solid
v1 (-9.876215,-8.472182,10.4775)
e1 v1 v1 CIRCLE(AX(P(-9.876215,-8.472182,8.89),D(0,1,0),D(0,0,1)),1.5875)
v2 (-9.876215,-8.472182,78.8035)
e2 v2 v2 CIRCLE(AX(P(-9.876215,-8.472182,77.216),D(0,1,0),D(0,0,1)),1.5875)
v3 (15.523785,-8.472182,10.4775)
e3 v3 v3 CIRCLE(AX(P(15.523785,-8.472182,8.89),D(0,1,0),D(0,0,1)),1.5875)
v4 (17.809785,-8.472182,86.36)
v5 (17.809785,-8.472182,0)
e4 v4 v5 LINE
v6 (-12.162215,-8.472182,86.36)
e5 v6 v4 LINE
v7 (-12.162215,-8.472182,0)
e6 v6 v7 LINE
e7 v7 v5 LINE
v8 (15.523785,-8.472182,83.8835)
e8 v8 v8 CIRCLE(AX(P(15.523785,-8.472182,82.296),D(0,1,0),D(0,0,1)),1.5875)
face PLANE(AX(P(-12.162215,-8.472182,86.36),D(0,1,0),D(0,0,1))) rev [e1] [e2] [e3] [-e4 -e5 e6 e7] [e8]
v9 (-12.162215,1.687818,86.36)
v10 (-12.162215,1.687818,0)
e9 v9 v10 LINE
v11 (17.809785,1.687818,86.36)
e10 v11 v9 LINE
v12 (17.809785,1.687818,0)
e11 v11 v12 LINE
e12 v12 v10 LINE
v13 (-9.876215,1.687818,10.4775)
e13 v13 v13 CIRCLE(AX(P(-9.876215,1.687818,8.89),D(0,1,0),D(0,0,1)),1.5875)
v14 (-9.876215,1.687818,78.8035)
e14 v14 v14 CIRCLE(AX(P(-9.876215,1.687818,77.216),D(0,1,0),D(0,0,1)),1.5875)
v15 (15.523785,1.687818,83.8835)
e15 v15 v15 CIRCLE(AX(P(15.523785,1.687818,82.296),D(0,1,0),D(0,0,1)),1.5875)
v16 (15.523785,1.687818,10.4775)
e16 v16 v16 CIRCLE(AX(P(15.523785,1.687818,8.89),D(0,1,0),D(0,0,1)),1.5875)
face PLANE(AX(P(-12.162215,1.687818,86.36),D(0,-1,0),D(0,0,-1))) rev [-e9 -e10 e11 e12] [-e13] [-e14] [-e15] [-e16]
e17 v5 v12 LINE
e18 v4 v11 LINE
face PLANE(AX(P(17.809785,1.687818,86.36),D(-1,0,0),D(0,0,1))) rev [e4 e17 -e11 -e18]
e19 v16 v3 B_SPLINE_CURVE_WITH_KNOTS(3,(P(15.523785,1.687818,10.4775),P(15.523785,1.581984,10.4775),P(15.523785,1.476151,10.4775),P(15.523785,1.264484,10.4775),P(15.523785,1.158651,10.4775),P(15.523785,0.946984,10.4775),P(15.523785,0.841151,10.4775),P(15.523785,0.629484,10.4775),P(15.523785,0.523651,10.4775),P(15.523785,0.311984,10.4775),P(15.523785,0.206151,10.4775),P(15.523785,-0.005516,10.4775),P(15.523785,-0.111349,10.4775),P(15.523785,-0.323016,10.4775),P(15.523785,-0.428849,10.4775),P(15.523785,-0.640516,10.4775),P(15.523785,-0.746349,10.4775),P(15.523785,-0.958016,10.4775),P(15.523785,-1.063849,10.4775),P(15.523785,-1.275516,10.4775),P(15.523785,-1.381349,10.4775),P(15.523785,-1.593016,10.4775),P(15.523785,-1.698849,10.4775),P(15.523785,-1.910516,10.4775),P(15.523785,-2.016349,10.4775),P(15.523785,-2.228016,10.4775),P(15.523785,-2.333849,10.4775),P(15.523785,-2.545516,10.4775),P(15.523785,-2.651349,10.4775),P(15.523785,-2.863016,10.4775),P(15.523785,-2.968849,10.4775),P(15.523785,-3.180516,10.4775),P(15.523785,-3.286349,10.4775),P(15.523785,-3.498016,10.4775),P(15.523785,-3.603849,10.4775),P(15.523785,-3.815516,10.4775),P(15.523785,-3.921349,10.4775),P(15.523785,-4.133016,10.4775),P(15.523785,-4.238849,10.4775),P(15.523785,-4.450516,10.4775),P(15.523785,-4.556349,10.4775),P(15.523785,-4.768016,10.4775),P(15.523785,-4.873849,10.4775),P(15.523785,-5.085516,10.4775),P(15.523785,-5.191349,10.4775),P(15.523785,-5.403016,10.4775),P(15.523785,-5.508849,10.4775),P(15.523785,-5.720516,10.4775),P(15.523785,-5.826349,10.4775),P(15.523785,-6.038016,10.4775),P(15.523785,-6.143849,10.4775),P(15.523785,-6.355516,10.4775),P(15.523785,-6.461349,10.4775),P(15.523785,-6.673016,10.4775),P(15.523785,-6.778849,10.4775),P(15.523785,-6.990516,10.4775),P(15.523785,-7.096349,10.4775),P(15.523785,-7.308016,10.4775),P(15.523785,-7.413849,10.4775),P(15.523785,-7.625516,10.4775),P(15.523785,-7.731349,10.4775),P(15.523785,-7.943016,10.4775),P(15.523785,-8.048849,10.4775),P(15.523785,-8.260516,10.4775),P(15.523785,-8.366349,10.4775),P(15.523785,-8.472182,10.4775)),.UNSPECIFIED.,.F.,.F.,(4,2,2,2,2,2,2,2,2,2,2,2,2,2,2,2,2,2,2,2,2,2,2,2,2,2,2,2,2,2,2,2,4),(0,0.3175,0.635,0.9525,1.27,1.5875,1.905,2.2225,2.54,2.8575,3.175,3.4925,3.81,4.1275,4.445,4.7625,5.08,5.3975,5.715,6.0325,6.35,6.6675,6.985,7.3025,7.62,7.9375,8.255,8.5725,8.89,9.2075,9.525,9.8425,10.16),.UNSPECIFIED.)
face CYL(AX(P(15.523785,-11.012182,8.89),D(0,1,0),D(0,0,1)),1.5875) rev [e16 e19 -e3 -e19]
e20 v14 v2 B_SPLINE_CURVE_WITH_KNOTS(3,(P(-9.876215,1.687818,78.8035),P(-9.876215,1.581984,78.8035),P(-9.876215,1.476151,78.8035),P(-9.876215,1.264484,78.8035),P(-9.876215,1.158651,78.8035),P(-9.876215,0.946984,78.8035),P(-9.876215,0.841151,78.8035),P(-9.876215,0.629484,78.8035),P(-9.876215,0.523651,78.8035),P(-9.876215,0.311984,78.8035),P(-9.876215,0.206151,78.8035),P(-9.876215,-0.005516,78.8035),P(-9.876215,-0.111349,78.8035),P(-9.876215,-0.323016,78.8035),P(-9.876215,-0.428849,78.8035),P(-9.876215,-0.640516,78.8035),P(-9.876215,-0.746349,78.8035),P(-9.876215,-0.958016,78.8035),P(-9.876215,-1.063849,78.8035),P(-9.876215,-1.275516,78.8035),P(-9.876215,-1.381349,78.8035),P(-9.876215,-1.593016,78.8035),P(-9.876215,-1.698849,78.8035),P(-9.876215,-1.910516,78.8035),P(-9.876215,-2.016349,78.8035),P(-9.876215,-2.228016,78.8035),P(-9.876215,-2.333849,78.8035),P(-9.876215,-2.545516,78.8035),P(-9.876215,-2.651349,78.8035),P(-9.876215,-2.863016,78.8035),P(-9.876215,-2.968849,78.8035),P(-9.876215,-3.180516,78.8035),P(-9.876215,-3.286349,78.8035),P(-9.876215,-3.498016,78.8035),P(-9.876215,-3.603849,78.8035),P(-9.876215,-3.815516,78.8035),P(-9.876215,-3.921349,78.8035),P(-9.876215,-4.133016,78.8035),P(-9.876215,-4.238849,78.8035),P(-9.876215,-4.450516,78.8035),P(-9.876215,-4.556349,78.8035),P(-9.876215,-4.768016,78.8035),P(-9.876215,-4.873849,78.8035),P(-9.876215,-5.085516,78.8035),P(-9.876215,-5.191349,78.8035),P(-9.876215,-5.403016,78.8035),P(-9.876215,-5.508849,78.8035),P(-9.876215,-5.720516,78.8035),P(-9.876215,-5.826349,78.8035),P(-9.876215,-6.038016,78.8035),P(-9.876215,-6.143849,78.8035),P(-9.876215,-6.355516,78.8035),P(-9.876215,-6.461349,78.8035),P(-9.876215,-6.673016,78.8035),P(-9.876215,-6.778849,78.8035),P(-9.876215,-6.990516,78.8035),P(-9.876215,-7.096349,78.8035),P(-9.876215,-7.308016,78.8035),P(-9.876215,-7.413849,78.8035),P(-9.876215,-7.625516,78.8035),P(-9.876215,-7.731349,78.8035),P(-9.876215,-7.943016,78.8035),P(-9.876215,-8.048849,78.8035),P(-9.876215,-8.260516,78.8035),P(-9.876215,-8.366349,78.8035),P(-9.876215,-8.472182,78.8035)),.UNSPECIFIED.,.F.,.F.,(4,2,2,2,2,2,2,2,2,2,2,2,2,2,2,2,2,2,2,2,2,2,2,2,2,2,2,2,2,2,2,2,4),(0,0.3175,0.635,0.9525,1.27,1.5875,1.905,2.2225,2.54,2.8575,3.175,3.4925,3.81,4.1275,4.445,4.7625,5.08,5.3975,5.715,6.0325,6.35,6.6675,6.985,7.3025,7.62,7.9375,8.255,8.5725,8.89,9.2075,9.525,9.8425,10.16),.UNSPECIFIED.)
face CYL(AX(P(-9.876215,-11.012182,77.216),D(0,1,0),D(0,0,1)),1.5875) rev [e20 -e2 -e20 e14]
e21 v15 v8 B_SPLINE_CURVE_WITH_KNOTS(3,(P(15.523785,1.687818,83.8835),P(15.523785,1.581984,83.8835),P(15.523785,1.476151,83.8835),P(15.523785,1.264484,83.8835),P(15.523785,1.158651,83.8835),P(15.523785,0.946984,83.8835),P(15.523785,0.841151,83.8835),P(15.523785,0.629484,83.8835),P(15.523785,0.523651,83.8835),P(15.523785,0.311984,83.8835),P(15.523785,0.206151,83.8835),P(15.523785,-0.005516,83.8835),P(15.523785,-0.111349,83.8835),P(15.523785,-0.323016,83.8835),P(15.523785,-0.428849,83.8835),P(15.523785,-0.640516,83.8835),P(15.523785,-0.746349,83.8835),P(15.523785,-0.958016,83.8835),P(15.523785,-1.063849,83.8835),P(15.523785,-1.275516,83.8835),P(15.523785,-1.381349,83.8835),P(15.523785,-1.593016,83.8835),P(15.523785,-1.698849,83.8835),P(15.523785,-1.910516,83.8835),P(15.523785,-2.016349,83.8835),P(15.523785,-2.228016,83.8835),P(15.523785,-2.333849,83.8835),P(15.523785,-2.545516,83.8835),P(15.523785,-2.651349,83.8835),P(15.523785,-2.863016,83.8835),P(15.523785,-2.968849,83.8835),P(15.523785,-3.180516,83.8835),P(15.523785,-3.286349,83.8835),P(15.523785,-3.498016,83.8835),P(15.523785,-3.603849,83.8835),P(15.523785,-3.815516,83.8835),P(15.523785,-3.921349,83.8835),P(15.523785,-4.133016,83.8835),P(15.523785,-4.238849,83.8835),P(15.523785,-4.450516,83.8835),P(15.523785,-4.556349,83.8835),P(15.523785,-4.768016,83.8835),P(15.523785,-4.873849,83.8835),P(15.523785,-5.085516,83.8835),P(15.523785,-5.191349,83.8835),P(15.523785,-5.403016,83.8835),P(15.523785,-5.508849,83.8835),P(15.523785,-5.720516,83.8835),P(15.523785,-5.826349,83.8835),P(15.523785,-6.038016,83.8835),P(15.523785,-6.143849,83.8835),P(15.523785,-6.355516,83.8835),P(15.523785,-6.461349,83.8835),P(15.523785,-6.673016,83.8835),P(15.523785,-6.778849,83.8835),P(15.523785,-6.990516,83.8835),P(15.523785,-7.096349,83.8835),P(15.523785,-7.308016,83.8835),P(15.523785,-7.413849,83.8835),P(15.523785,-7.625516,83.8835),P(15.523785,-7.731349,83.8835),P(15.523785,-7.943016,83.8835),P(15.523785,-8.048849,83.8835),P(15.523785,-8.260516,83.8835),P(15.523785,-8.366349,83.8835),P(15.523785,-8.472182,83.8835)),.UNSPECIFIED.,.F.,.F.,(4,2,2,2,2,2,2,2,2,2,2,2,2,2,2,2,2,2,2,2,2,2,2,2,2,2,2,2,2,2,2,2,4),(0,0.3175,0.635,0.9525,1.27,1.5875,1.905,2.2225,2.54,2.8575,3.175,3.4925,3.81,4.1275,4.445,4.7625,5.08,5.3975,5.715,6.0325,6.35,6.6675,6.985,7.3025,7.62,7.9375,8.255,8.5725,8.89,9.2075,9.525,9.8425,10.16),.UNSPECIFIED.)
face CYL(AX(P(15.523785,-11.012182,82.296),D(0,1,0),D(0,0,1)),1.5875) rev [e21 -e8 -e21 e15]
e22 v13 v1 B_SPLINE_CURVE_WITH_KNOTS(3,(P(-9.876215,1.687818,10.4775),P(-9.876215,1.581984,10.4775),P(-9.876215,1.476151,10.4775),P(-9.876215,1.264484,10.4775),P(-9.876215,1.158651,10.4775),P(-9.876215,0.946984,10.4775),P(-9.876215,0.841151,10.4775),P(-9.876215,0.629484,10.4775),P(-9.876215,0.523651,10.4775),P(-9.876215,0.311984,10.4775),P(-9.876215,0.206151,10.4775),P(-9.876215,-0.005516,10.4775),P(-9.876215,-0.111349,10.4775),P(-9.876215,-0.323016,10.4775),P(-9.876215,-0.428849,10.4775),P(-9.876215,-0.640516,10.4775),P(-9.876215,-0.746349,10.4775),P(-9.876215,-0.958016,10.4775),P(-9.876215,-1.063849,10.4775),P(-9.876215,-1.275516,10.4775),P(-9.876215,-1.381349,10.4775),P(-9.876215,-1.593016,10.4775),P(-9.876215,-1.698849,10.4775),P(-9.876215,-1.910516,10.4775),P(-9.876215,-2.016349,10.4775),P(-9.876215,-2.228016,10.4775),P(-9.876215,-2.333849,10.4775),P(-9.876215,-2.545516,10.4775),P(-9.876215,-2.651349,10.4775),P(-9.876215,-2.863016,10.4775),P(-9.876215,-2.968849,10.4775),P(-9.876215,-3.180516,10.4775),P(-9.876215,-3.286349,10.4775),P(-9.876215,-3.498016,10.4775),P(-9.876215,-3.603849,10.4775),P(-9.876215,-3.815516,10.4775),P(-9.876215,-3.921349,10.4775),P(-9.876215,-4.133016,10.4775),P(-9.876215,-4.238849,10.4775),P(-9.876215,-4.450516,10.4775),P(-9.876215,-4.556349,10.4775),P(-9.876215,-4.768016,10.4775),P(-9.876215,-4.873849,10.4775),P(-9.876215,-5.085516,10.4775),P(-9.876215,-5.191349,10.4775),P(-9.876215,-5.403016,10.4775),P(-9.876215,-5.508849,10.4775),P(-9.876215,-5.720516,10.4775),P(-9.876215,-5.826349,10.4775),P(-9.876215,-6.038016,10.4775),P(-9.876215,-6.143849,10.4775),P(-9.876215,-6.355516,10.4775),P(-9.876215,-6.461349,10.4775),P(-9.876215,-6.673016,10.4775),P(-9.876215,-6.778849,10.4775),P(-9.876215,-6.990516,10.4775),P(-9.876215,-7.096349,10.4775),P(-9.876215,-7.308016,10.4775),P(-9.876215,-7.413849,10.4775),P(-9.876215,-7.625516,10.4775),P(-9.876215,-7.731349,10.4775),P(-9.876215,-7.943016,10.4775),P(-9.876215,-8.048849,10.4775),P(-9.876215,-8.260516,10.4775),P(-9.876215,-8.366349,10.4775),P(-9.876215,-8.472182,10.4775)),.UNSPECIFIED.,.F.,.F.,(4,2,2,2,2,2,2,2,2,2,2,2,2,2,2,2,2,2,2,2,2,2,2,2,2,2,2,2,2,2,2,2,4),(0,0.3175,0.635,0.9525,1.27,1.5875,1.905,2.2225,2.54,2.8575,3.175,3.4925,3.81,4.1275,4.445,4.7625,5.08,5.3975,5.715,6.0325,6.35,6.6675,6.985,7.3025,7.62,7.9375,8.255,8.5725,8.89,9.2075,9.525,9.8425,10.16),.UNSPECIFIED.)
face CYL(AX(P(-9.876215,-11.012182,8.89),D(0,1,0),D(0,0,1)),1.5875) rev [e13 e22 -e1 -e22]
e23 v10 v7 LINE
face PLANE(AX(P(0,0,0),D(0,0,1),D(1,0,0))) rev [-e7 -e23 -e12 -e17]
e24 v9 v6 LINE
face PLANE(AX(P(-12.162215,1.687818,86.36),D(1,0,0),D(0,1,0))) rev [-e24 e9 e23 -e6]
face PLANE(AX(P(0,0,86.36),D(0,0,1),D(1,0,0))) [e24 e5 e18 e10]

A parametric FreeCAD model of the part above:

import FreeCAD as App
import Part
import Sketcher

V = App.Vector
Q = App.Units.Quantity

doc = App.newDocument("Part")
body = doc.addObject("PartDesign::Body", "Body")

# Sketch on XY plane
sketch1 = doc.addObject("Sketcher::SketchObject", "Sketch")
body.addObject(sketch1)
sketch1.AttachmentSupport = (doc.XY_Plane, [""])
sketch1.MapMode = "FlatFace"
sketch1.addGeometry(Part.LineSegment(V(-12, 2, 0), V(-12, -8, 0)), False)
sketch1.addGeometry(Part.LineSegment(V(-12, -8, 0), V(18, -8, 0)), False)
sketch1.addGeometry(Part.LineSegment(V(18, -8, 0), V(18, 2, 0)), False)
sketch1.addGeometry(Part.LineSegment(V(18, 2, 0), V(-12, 2, 0)), False)
sketch1.addConstraint(Sketcher.Constraint("Coincident", 0, 2, 1, 1))
sketch1.addConstraint(Sketcher.Constraint("Coincident", 1, 2, 2, 1))
sketch1.addConstraint(Sketcher.Constraint("Coincident", 2, 2, 3, 1))
sketch1.addConstraint(Sketcher.Constraint("Coincident", 3, 2, 0, 1))
sketch1.addConstraint(Sketcher.Constraint("Vertical", 0))
sketch1.addConstraint(Sketcher.Constraint("Horizontal", 1))
sketch1.addConstraint(Sketcher.Constraint("Vertical", 2))
sketch1.addConstraint(Sketcher.Constraint("Horizontal", 3))
sketch1.addConstraint(Sketcher.Constraint("DistanceY", 0, 2, 0, 1, Q("0.4 in")))
sketch1.addConstraint(Sketcher.Constraint("DistanceX", 1, 1, 1, 2, Q("1.18 in")))
sketch1.addConstraint(Sketcher.Constraint("DistanceX", 0, 2, -1, 1, 12.162215))
sketch1.addConstraint(Sketcher.Constraint("DistanceY", 0, 2, -1, 1, 8.472182))
pad1 = doc.addObject("PartDesign::Pad", "Pad")
body.addObject(pad1)
pad1.Profile = sketch1
pad1.Length = Q("3.4 in")

# Sketch on XZ plane
sketch2 = doc.addObject("Sketcher::SketchObject", "Sketch001")
body.addObject(sketch2)
sketch2.AttachmentSupport = (doc.XZ_Plane, [""])
sketch2.MapMode = "FlatFace"
sketch2.AttachmentOffset = App.Placement(V(0, 0, -1.687818), App.Rotation())
sketch2.addGeometry(Part.Circle(V(-9.9, 8.9, 0), V(0, 0, 1), 1.6), False)
sketch2.addGeometry(Part.Circle(V(15.5, 8.9, 0), V(0, 0, 1), 1.6), False)
sketch2.addGeometry(Part.Circle(V(-9.9, 77.2, 0), V(0, 0, 1), 1.6), False)
sketch2.addGeometry(Part.Circle(V(15.5, 82.3, 0), V(0, 0, 1), 1.6), False)
sketch2.addConstraint(Sketcher.Constraint("Equal", 0, 1))
sketch2.addConstraint(Sketcher.Constraint("Equal", 1, 2))
sketch2.addConstraint(Sketcher.Constraint("Equal", 2, 3))
sketch2.addConstraint(Sketcher.Constraint("Horizontal", 0, 3, 1, 3))
sketch2.addConstraint(Sketcher.Constraint("Vertical", 0, 3, 2, 3))
sketch2.addConstraint(Sketcher.Constraint("Vertical", 1, 3, 3, 3))
sketch2.addConstraint(Sketcher.Constraint("Diameter", 0, Q("0.125 in")))
sketch2.addConstraint(Sketcher.Constraint("DistanceX", 0, 3, 1, 3, Q("1 in")))
sketch2.addConstraint(Sketcher.Constraint("DistanceY", 2, 3, 3, 3, Q("0.2 in")))
sketch2.addConstraint(Sketcher.Constraint("DistanceY", -1, 1, 0, 3, Q("0.35 in")))
sketch2.addConstraint(Sketcher.Constraint("DistanceY", -1, 1, 2, 3, Q("3.04 in")))
sketch2.addConstraint(Sketcher.Constraint("DistanceX", 0, 3, -1, 1, 9.876215))
pocket1 = doc.addObject("PartDesign::Pocket", "Pocket")
body.addObject(pocket1)
pocket1.Profile = sketch2
pocket1.Length = Q("0.5 in")
pocket1.Reversed = True

doc.recompute()
